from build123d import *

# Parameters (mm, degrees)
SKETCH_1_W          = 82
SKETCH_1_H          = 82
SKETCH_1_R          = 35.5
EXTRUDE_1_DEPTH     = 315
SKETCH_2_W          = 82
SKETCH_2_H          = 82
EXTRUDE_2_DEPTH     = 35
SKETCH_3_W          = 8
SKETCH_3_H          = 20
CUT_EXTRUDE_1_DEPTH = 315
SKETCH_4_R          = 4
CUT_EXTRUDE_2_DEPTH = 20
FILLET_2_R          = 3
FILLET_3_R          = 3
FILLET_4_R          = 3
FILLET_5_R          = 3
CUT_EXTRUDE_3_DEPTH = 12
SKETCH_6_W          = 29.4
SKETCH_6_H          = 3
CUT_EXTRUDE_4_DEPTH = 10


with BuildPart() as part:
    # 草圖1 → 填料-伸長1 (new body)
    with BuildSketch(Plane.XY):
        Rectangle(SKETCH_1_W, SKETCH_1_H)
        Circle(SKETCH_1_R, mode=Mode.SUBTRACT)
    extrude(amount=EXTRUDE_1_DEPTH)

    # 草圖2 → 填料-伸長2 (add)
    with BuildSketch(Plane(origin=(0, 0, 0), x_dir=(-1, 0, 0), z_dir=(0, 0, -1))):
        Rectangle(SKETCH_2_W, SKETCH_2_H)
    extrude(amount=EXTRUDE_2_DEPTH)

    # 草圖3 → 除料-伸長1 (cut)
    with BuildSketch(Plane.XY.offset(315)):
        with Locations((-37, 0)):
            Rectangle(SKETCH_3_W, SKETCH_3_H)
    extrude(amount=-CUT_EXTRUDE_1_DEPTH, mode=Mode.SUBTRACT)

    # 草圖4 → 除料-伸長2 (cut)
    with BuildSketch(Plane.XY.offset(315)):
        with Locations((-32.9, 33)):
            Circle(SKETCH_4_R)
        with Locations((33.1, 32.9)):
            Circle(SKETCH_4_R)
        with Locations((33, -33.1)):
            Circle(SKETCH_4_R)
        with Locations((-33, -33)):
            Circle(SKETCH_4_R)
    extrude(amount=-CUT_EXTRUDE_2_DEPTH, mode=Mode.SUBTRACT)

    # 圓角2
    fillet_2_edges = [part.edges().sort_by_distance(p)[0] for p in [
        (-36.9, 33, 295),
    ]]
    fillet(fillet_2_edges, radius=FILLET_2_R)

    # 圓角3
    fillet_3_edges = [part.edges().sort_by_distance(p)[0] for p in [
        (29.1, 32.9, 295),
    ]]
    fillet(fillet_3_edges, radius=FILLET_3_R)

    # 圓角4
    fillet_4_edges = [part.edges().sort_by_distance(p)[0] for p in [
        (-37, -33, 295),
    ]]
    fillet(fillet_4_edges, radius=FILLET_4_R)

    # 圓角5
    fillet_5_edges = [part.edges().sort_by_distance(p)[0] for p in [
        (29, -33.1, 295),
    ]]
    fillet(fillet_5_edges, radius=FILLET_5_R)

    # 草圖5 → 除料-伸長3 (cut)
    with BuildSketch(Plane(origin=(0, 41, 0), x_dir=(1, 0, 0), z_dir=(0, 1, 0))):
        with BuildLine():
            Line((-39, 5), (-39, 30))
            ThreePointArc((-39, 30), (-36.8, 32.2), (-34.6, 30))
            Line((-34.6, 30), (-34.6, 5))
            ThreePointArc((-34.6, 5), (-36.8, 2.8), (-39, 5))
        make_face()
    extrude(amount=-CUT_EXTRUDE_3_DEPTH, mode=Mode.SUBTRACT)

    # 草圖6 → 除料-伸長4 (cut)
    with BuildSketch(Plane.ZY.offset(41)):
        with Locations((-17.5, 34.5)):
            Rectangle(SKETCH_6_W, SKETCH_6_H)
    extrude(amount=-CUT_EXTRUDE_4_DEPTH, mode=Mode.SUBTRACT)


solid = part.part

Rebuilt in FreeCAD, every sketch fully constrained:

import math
import FreeCAD as App
import Part
import Sketcher


def edges_at(feature, points):
    """Names of the edges that pass closest to the given points."""
    edges = feature.Shape.Edges
    near = lambda p: min(range(len(edges)), key=lambda i: edges[i].distToShape(Part.Vertex(*p))[0])
    return sorted({f"Edge{near(p) + 1}" for p in points})


def add_polygon(sketch, points):
    """Adds a closed chain of lines whose ends are joined by coincident constraints."""
    first, n = sketch.GeometryCount, len(points)
    for a, b in zip(points, points[1:] + points[:1]):
        sketch.addGeometry(Part.LineSegment(App.Vector(*a, 0), App.Vector(*b, 0)), False)
    for i in range(n):
        sketch.addConstraint(Sketcher.Constraint("Coincident", first + i, 2, first + (i + 1) % n, 1))

doc = App.newDocument("Part")
body = doc.addObject("PartDesign::Body", "Body")

sketch1 = body.newObject("Sketcher::SketchObject", "Sketch")
sketch1.AttachmentSupport = (doc.getObject("XY_Plane"), [""])
sketch1.MapMode = "FlatFace"
add_polygon(sketch1, [(-41, 41), (-41, -41), (41, -41), (41, 41)])
sketch1.addGeometry(Part.Circle(App.Vector(0, 0, 0), App.Vector(0, 0, 1), 36), False)
sketch1.addConstraint([
    Sketcher.Constraint("Vertical", 0),
    Sketcher.Constraint("Horizontal", 1),
    Sketcher.Constraint("Vertical", 2),
    Sketcher.Constraint("Horizontal", 3),
    Sketcher.Constraint("Coincident", 4, 3, -1, 1),
    Sketcher.Constraint("Symmetric", 0, 2, 2, 2, -1, 1),
    Sketcher.Constraint("Equal", 3, 0),
    Sketcher.Constraint("Diameter", 4, 71.0),
    Sketcher.Constraint("DistanceX", 1, 1, 1, 2, 82.0),
])
pad1 = body.newObject("PartDesign::Pad", "Pad")
pad1.Profile = sketch1
pad1.Length = 315

sketch2 = body.newObject("Sketcher::SketchObject", "Sketch001")
sketch2.AttachmentSupport = (doc.getObject("XY_Plane"), [""])
sketch2.MapMode = "FlatFace"
add_polygon(sketch2, [(41, 41), (41, -41), (-41, -41), (-41, 41)])
sketch2.addConstraint([
    Sketcher.Constraint("Vertical", 0),
    Sketcher.Constraint("Horizontal", 1),
    Sketcher.Constraint("Vertical", 2),
    Sketcher.Constraint("Horizontal", 3),
    Sketcher.Constraint("Symmetric", 0, 2, 2, 2, -1, 1),
    Sketcher.Constraint("Equal", 3, 0),
    Sketcher.Constraint("DistanceX", 1, 2, 1, 1, 82.0),
])
pad2 = body.newObject("PartDesign::Pad", "Pad001")
pad2.Profile = sketch2
pad2.Length = 35
pad2.Reversed = True

sketch3 = body.newObject("Sketcher::SketchObject", "Sketch002")
sketch3.AttachmentSupport = (doc.getObject("XY_Plane"), [""])
sketch3.MapMode = "FlatFace"
sketch3.AttachmentOffset = App.Placement(App.Vector(0, 0, 315), App.Rotation())
add_polygon(sketch3, [(-41, 10), (-41, -10), (-33, -10), (-33, 10)])
sketch3.addConstraint([
    Sketcher.Constraint("Vertical", 0),
    Sketcher.Constraint("Horizontal", 1),
    Sketcher.Constraint("Vertical", 2),
    Sketcher.Constraint("Horizontal", 3),
    Sketcher.Constraint("DistanceX", 1, 1, 1, 2, 8.0),
    Sketcher.Constraint("DistanceY", 0, 2, 0, 1, 20.0),
    Sketcher.Constraint("DistanceX", 0, 2, -1, 1, 41.0),
    Sketcher.Constraint("DistanceY", 0, 2, -1, 1, 10.0),
])
pocket1 = body.newObject("PartDesign::Pocket", "Pocket")
pocket1.Profile = sketch3
pocket1.Length = 315

sketch4 = body.newObject("Sketcher::SketchObject", "Sketch003")
sketch4.AttachmentSupport = (doc.getObject("XY_Plane"), [""])
sketch4.MapMode = "FlatFace"
sketch4.AttachmentOffset = App.Placement(App.Vector(0, 0, 315), App.Rotation())
sketch4.addGeometry([
    Part.Circle(App.Vector(-32.9, 33, 0), App.Vector(0, 0, 1), 4),
    Part.Circle(App.Vector(33.1, 32.9, 0), App.Vector(0, 0, 1), 4),
    Part.Circle(App.Vector(33, -33.1, 0), App.Vector(0, 0, 1), 4),
    Part.Circle(App.Vector(-33, -33, 0), App.Vector(0, 0, 1), 4),
], False)
sketch4.addConstraint([
    Sketcher.Constraint("Equal", 0, 1),
    Sketcher.Constraint("Equal", 1, 2),
    Sketcher.Constraint("Equal", 2, 3),
    Sketcher.Constraint("Diameter", 0, 8.0),
    Sketcher.Constraint("DistanceY", -1, 1, 0, 3, 33.0),
    Sketcher.Constraint("DistanceX", -1, 1, 2, 3, 33.0),
    Sketcher.Constraint("DistanceX", 3, 3, -1, 1, 33.0),
    Sketcher.Constraint("DistanceY", 3, 3, -1, 1, 33.0),
    Sketcher.Constraint("DistanceX", 0, 3, 1, 3, 66.0),
    Sketcher.Constraint("DistanceY", 2, 3, 1, 3, 66.0),
    Sketcher.Constraint("DistanceX", 0, 3, -1, 1, 32.9),
    Sketcher.Constraint("DistanceY", -1, 1, 1, 3, 32.9),
])
pocket2 = body.newObject("PartDesign::Pocket", "Pocket001")
pocket2.Profile = sketch4
pocket2.Length = 20
doc.recompute()

fillet = body.newObject("PartDesign::Fillet", "Fillet")
fillet.Base = (pocket2, edges_at(pocket2, [(-36.9, 33, 295)]))
fillet.Radius = 3
doc.recompute()

fillet2 = body.newObject("PartDesign::Fillet", "Fillet001")
fillet2.Base = (fillet, edges_at(fillet, [(29.1, 32.9, 295)]))
fillet2.Radius = 3
doc.recompute()

fillet3 = body.newObject("PartDesign::Fillet", "Fillet002")
fillet3.Base = (fillet2, edges_at(fillet2, [(-37, -33, 295)]))
fillet3.Radius = 3
doc.recompute()

fillet4 = body.newObject("PartDesign::Fillet", "Fillet003")
fillet4.Base = (fillet3, edges_at(fillet3, [(29, -33.1, 295)]))
fillet4.Radius = 3

sketch5 = body.newObject("Sketcher::SketchObject", "Sketch004")
sketch5.AttachmentSupport = (doc.getObject("XZ_Plane"), [""])
sketch5.MapMode = "FlatFace"
sketch5.AttachmentOffset = App.Placement(App.Vector(0, 0, -41), App.Rotation())
sketch5.addGeometry([
    Part.LineSegment(App.Vector(-39, -30, 0), App.Vector(-39, -5, 0)),
    Part.ArcOfCircle(Part.Circle(App.Vector(-36.8, -5, 0), App.Vector(0, 0, 1), 2.2), math.radians(0), math.radians(180)),
    Part.LineSegment(App.Vector(-34.6, -5, 0), App.Vector(-34.6, -30, 0)),
    Part.ArcOfCircle(Part.Circle(App.Vector(-36.8, -30, 0), App.Vector(0, 0, 1), 2.2), math.radians(180), math.radians(360)),
], False)
sketch5.addConstraint([
    Sketcher.Constraint("Tangent", 0, 2, 1, 2),
    Sketcher.Constraint("Tangent", 1, 1, 2, 1),
    Sketcher.Constraint("Tangent", 2, 2, 3, 2),
    Sketcher.Constraint("Tangent", 3, 1, 0, 1),
    Sketcher.Constraint("Vertical", 0),
    Sketcher.Constraint("Vertical", 2),
    Sketcher.Constraint("Radius", 1, 2.2),
    Sketcher.Constraint("DistanceY", 0, 1, 0, 2, 25.0),
    Sketcher.Constraint("DistanceY", 1, 3, -1, 1, 5.0),
    Sketcher.Constraint("DistanceX", 0, 2, -1, 1, 39.0),
])
pocket3 = body.newObject("PartDesign::Pocket", "Pocket002")
pocket3.Profile = sketch5
pocket3.Length = 12
pocket3.Reversed = True

sketch6 = body.newObject("Sketcher::SketchObject", "Sketch005")
sketch6.AttachmentSupport = (doc.getObject("YZ_Plane"), [""])
sketch6.MapMode = "FlatFace"
sketch6.AttachmentOffset = App.Placement(App.Vector(0, 0, -41), App.Rotation())
add_polygon(sketch6, [(36, -32.2), (33, -32.2), (33, -2.8), (36, -2.8)])
sketch6.addConstraint([
    Sketcher.Constraint("Horizontal", 0),
    Sketcher.Constraint("Vertical", 1),
    Sketcher.Constraint("Horizontal", 2),
    Sketcher.Constraint("Vertical", 3),
    Sketcher.Constraint("DistanceX", 0, 2, 0, 1, 3.0),
    Sketcher.Constraint("DistanceY", 1, 1, 1, 2, 29.4),
    Sketcher.Constraint("DistanceX", -1, 1, 0, 2, 33.0),
    Sketcher.Constraint("DistanceY", 0, 2, -1, 1, 32.2),
])
pocket4 = body.newObject("PartDesign::Pocket", "Pocket003")
pocket4.Profile = sketch6
pocket4.Length = 10
pocket4.Reversed = True

doc.recompute()
